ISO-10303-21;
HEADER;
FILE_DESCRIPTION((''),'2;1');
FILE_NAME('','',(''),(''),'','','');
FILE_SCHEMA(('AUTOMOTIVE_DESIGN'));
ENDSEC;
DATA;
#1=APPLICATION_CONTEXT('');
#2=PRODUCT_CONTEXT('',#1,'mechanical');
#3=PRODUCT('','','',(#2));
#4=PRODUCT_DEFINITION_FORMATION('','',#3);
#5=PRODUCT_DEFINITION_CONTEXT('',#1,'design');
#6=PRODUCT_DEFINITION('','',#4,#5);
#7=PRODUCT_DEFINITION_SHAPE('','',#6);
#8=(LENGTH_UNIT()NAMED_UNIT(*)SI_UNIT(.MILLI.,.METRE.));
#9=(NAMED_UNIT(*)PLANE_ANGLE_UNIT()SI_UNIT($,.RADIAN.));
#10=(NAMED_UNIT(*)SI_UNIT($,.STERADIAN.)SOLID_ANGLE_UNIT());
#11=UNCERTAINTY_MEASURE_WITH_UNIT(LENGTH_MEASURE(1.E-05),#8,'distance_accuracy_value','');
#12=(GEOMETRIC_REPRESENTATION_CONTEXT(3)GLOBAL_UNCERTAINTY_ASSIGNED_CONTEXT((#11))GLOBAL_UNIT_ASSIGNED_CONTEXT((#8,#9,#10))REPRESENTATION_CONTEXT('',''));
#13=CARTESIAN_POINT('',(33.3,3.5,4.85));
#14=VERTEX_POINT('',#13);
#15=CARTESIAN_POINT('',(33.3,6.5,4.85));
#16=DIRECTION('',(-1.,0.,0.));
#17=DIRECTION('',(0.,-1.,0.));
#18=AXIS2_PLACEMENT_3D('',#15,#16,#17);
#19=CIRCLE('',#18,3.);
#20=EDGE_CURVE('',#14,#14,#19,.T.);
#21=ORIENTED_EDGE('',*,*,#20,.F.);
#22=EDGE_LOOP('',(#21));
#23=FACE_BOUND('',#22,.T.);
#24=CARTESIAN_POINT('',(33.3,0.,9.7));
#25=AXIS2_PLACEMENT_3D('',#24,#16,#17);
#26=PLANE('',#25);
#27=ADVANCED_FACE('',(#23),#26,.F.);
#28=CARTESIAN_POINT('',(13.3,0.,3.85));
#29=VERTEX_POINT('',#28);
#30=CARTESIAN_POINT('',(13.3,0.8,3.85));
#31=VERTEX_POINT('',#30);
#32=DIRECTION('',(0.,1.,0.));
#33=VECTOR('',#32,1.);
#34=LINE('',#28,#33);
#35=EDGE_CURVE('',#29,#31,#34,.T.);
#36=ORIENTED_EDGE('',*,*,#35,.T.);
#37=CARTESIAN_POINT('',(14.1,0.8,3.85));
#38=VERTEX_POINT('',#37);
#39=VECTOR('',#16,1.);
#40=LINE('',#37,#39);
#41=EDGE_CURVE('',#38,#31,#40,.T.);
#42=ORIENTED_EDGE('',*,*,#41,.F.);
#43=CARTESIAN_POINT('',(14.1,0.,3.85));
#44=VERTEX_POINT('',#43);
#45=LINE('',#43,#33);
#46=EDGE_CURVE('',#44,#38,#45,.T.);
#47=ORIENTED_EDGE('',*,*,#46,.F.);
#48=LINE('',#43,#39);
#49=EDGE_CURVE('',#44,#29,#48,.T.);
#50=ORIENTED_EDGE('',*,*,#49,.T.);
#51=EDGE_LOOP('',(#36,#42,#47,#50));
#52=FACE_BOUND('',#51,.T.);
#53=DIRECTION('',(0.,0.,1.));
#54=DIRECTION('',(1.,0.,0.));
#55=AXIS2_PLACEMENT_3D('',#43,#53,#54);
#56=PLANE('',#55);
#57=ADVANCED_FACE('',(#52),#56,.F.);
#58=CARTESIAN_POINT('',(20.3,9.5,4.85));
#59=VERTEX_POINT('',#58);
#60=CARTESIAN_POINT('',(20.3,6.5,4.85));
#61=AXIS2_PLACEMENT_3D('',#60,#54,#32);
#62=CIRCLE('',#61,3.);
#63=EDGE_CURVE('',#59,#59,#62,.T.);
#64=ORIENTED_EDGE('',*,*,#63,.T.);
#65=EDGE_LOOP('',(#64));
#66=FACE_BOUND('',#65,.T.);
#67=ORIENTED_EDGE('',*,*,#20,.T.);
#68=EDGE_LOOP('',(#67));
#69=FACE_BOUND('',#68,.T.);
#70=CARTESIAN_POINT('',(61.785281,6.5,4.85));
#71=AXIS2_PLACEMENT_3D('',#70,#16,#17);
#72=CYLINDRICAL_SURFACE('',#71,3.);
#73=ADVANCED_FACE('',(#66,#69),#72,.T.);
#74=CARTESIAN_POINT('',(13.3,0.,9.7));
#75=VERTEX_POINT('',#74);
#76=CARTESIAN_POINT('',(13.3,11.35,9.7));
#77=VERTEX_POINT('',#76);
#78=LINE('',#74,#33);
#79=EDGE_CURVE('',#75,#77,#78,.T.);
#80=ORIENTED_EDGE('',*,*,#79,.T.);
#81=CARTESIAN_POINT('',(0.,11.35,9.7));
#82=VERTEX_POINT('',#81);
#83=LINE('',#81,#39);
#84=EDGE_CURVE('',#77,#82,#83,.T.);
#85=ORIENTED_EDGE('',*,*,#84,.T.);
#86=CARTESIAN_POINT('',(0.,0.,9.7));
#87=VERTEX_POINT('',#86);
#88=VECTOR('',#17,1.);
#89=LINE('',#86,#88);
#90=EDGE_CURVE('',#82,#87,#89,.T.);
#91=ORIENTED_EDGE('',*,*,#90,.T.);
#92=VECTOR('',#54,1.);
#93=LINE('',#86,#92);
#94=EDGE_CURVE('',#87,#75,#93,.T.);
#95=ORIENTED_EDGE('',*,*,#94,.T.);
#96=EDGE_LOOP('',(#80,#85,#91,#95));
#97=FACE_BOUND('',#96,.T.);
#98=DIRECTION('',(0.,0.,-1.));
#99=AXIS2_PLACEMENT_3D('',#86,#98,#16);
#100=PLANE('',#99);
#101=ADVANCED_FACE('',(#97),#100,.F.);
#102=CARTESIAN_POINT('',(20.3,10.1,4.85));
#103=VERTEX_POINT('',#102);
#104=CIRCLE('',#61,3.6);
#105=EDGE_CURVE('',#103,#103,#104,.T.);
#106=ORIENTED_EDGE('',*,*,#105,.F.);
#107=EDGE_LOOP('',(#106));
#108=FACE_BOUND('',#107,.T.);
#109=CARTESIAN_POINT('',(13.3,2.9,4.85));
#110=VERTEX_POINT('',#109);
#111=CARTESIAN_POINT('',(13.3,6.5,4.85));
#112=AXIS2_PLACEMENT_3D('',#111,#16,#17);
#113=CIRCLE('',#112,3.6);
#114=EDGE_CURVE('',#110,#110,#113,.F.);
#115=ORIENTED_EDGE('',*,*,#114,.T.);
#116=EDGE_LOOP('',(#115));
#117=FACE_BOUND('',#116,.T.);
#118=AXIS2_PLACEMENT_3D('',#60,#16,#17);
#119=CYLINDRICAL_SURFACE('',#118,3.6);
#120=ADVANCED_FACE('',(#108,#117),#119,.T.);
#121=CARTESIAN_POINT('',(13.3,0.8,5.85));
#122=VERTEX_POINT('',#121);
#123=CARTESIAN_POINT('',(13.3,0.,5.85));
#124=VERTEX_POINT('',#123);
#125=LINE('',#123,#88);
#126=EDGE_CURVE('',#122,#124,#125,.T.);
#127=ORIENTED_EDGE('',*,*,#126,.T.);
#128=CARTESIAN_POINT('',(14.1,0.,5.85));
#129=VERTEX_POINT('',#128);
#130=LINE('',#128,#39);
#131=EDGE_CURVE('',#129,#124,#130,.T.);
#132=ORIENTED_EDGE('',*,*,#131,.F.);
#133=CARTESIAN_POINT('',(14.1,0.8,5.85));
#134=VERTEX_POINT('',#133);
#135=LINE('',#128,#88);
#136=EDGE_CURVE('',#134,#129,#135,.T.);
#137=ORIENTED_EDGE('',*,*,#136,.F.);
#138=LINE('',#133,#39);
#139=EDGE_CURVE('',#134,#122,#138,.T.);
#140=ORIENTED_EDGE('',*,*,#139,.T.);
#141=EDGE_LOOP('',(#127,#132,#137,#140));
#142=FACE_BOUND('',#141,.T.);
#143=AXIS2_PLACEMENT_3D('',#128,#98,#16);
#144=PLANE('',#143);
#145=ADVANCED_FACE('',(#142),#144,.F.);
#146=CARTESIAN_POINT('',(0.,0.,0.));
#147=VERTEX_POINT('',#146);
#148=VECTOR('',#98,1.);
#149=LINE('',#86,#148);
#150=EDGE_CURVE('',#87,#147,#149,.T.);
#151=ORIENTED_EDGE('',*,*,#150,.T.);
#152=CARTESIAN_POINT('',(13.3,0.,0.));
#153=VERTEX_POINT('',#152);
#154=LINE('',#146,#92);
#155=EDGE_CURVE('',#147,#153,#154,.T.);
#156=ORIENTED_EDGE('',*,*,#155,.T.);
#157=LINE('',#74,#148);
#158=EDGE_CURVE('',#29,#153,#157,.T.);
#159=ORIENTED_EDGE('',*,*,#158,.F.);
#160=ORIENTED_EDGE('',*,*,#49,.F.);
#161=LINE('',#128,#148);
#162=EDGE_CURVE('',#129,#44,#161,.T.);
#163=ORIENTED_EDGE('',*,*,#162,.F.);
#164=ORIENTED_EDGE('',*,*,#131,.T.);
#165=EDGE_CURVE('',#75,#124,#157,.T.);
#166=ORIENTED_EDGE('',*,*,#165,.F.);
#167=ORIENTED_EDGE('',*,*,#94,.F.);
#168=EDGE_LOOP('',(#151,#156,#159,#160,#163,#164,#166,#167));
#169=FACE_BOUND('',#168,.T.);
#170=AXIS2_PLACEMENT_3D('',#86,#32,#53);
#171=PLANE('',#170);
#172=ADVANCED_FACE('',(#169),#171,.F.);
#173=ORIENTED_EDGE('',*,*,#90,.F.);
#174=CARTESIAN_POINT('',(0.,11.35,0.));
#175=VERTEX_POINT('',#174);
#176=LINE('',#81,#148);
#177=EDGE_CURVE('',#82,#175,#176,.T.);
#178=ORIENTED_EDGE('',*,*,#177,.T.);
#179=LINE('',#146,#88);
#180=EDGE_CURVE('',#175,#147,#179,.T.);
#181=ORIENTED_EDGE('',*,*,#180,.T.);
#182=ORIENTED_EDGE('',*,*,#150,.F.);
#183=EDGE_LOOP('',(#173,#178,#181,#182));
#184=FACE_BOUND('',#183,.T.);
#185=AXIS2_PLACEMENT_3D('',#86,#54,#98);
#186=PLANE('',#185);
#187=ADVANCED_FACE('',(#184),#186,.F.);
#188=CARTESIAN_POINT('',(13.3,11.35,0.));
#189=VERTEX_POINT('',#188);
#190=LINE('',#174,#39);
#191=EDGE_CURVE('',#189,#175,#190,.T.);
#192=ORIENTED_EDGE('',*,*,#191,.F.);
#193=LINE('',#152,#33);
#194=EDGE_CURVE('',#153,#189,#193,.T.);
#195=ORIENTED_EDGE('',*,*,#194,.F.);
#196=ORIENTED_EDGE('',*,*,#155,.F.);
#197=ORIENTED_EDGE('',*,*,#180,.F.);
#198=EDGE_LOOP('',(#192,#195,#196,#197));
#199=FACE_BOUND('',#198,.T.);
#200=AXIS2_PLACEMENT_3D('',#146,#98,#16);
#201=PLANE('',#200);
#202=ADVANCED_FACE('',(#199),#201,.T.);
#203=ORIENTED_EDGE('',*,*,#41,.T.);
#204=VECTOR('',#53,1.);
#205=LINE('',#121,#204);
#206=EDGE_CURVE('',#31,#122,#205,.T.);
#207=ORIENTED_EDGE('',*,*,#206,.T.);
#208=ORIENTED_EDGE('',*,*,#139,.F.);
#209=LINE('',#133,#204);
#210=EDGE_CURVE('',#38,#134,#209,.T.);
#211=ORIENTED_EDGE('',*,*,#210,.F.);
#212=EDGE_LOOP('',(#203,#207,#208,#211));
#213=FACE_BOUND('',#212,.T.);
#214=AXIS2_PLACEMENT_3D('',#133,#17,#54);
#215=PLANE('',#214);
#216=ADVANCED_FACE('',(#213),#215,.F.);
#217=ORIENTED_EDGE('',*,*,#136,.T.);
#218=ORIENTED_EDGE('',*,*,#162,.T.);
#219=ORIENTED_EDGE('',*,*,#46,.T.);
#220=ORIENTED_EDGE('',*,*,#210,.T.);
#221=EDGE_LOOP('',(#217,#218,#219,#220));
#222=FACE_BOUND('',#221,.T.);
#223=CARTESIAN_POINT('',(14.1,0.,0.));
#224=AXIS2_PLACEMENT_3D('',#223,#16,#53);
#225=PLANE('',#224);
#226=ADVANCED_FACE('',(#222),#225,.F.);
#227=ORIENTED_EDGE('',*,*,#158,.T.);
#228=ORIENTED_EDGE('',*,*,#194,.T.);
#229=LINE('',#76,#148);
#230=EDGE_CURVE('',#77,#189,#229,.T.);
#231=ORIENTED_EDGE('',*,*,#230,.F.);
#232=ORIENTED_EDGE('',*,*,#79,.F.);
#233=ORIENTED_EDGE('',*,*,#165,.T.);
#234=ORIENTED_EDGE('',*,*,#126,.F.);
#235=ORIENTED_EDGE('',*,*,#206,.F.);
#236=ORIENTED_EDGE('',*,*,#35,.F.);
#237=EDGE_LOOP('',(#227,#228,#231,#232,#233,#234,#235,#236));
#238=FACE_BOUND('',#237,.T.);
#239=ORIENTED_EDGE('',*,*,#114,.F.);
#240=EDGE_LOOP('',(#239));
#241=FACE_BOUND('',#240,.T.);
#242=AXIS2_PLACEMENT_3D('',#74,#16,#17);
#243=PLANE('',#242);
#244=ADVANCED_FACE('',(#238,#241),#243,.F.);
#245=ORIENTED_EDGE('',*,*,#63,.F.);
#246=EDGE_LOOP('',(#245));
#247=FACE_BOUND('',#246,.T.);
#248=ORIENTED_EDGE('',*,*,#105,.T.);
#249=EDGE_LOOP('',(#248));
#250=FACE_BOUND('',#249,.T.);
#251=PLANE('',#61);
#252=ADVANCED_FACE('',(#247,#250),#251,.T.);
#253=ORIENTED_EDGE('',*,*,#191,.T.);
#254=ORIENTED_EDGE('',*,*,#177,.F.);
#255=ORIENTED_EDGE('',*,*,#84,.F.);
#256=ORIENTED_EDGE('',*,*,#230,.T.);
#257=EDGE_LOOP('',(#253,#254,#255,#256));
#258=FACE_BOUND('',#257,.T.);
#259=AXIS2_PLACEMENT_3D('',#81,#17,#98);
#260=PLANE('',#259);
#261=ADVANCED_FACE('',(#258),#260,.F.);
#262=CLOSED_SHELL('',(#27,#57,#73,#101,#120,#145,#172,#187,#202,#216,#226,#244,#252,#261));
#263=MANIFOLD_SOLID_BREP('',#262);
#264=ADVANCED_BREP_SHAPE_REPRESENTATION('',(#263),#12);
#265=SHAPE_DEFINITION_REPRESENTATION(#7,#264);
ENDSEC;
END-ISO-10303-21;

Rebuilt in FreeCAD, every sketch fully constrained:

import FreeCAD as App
import Part
import Sketcher
from FreeCAD import Vector

doc = App.newDocument("Part")
body = doc.addObject("PartDesign::Body", "Body")

# Sketch on XY plane
sketch1 = doc.addObject("Sketcher::SketchObject", "Sketch")
body.addObject(sketch1)
sketch1.AttachmentSupport = (doc.XY_Plane, [""])
sketch1.MapMode = "FlatFace"
sketch1.addGeometry(Part.LineSegment(Vector(0, 11.35, 0), Vector(0, 0, 0)), False)
sketch1.addGeometry(Part.LineSegment(Vector(0, 0, 0), Vector(13.3, 0, 0)), False)
sketch1.addGeometry(Part.LineSegment(Vector(13.3, 0, 0), Vector(13.3, 11.35, 0)), False)
sketch1.addGeometry(Part.LineSegment(Vector(13.3, 11.35, 0), Vector(0, 11.35, 0)), False)
sketch1.addConstraint(Sketcher.Constraint("Coincident", 0, 2, 1, 1))
sketch1.addConstraint(Sketcher.Constraint("Coincident", 1, 2, 2, 1))
sketch1.addConstraint(Sketcher.Constraint("Coincident", 2, 2, 3, 1))
sketch1.addConstraint(Sketcher.Constraint("Coincident", 3, 2, 0, 1))
sketch1.addConstraint(Sketcher.Constraint("Vertical", 0))
sketch1.addConstraint(Sketcher.Constraint("Horizontal", 1))
sketch1.addConstraint(Sketcher.Constraint("Vertical", 2))
sketch1.addConstraint(Sketcher.Constraint("Horizontal", 3))
sketch1.addConstraint(Sketcher.Constraint("Coincident", 0, 2, -1, 1))
sketch1.addConstraint(Sketcher.Constraint("DistanceX", 1, 1, 1, 2, 13.3))
sketch1.addConstraint(Sketcher.Constraint("DistanceY", 0, 2, 0, 1, 11.35))
pad1 = doc.addObject("PartDesign::Pad", "Pad")
body.addObject(pad1)
pad1.Profile = sketch1
pad1.Length = 9.7

# Sketch on YZ plane
sketch2 = doc.addObject("Sketcher::SketchObject", "Sketch001")
body.addObject(sketch2)
sketch2.AttachmentSupport = (doc.YZ_Plane, [""])
sketch2.MapMode = "FlatFace"
sketch2.AttachmentOffset = App.Placement(Vector(0, 0, 13.3), App.Rotation())
sketch2.addGeometry(Part.Circle(Vector(6.5, 4.85, 0), Vector(0, 0, 1), 3.6), False)
sketch2.addConstraint(Sketcher.Constraint("Diameter", 0, 7.2))
sketch2.addConstraint(Sketcher.Constraint("DistanceX", -1, 1, 0, 3, 6.5))
sketch2.addConstraint(Sketcher.Constraint("DistanceY", -1, 1, 0, 3, 4.85))
pad2 = doc.addObject("PartDesign::Pad", "Pad001")
body.addObject(pad2)
pad2.Profile = sketch2
pad2.Length = 7

# Sketch on YZ plane
sketch3 = doc.addObject("Sketcher::SketchObject", "Sketch002")
body.addObject(sketch3)
sketch3.AttachmentSupport = (doc.YZ_Plane, [""])
sketch3.MapMode = "FlatFace"
sketch3.AttachmentOffset = App.Placement(Vector(0, 0, 20.3), App.Rotation())
sketch3.addGeometry(Part.Circle(Vector(6.5, 4.85, 0), Vector(0, 0, 1), 3), False)
sketch3.addConstraint(Sketcher.Constraint("Diameter", 0, 6.0))
sketch3.addConstraint(Sketcher.Constraint("DistanceX", -1, 1, 0, 3, 6.5))
sketch3.addConstraint(Sketcher.Constraint("DistanceY", -1, 1, 0, 3, 4.85))
pad3 = doc.addObject("PartDesign::Pad", "Pad002")
body.addObject(pad3)
pad3.Profile = sketch3
pad3.Length = 13

# Sketch on YZ plane
sketch4 = doc.addObject("Sketcher::SketchObject", "Sketch003")
body.addObject(sketch4)
sketch4.AttachmentSupport = (doc.YZ_Plane, [""])
sketch4.MapMode = "FlatFace"
sketch4.AttachmentOffset = App.Placement(Vector(0, 0, 13.3), App.Rotation())
sketch4.addGeometry(Part.LineSegment(Vector(0.8, 5.85, 0), Vector(0, 5.85, 0)), False)
sketch4.addGeometry(Part.LineSegment(Vector(0, 5.85, 0), Vector(0, 3.85, 0)), False)
sketch4.addGeometry(Part.LineSegment(Vector(0, 3.85, 0), Vector(0.8, 3.85, 0)), False)
sketch4.addGeometry(Part.LineSegment(Vector(0.8, 3.85, 0), Vector(0.8, 5.85, 0)), False)
sketch4.addConstraint(Sketcher.Constraint("Coincident", 0, 2, 1, 1))
sketch4.addConstraint(Sketcher.Constraint("Coincident", 1, 2, 2, 1))
sketch4.addConstraint(Sketcher.Constraint("Coincident", 2, 2, 3, 1))
sketch4.addConstraint(Sketcher.Constraint("Coincident", 3, 2, 0, 1))
sketch4.addConstraint(Sketcher.Constraint("Horizontal", 0))
sketch4.addConstraint(Sketcher.Constraint("Vertical", 1))
sketch4.addConstraint(Sketcher.Constraint("Horizontal", 2))
sketch4.addConstraint(Sketcher.Constraint("Vertical", 3))
sketch4.addConstraint(Sketcher.Constraint("PointOnObject", 0, 2, -2))
sketch4.addConstraint(Sketcher.Constraint("DistanceY", 1, 2, 1, 1, 2.0))
sketch4.addConstraint(Sketcher.Constraint("DistanceX", 0, 2, 0, 1, 0.8))
sketch4.addConstraint(Sketcher.Constraint("DistanceY", -1, 1, 0, 2, 5.85))
pad4 = doc.addObject("PartDesign::Pad", "Pad003")
body.addObject(pad4)
pad4.Profile = sketch4
pad4.Length = 0.8

doc.recompute()
